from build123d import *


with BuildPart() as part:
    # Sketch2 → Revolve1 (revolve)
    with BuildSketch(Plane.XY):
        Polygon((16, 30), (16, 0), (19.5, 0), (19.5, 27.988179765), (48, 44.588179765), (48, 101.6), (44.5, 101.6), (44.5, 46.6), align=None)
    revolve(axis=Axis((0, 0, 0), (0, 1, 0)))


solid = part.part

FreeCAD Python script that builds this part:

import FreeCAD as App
import Part
import Sketcher


def add_polygon(sketch, points):
    """Adds a closed chain of lines whose ends are joined by coincident constraints."""
    first, n = sketch.GeometryCount, len(points)
    for a, b in zip(points, points[1:] + points[:1]):
        sketch.addGeometry(Part.LineSegment(App.Vector(*a, 0), App.Vector(*b, 0)), False)
    for i in range(n):
        sketch.addConstraint(Sketcher.Constraint("Coincident", first + i, 2, first + (i + 1) % n, 1))

doc = App.newDocument("Part")
params = doc.addObject("Spreadsheet::Sheet", "Params")
for row, (alias, value) in enumerate([
    ("sketch1_height", "30 mm"),
    ("sketch1_height2", "55 mm"),
    ("sketch1_width", "3.5 mm"),
    ("revolution_angle", "360 deg"),
], start=1):
    params.set(f"A{row}", alias)
    params.set(f"B{row}", "=" + value)
    params.setAlias(f"B{row}", alias)

body = doc.addObject("PartDesign::Body", "Body")

# Sketch on XY plane
sketch1 = doc.addObject("Sketcher::SketchObject", "Sketch")
body.addObject(sketch1)
sketch1.AttachmentSupport = (doc.XY_Plane, [""])
sketch1.MapMode = "FlatFace"
add_polygon(sketch1, [(16, 30), (16, 0), (19.5, 0), (19.5, 28), (48, 44.6), (48, 101.6), (44.5, 101.6), (44.5, 46.6)])  # lines 0-7
sketch1.addConstraint(Sketcher.Constraint("Vertical", 0))
sketch1.addConstraint(Sketcher.Constraint("Horizontal", 1))
sketch1.addConstraint(Sketcher.Constraint("Vertical", 2))
sketch1.addConstraint(Sketcher.Constraint("Vertical", 4))
sketch1.addConstraint(Sketcher.Constraint("Horizontal", 5))
sketch1.addConstraint(Sketcher.Constraint("Vertical", 6))
sketch1.addConstraint(Sketcher.Constraint("PointOnObject", 0, 2, -1))
sketch1.addConstraint(Sketcher.Constraint("Parallel", 3, 7))
sketch1.addConstraint(Sketcher.Constraint("Equal", 1, 5))
sketch1.addConstraint(Sketcher.Constraint("DistanceY", 0, 2, 0, 1, 30.0))
sketch1.addConstraint(Sketcher.Constraint("DistanceY", 6, 2, 6, 1, 55.0))
sketch1.addConstraint(Sketcher.Constraint("DistanceX", 1, 1, 1, 2, 3.5))
sketch1.addConstraint(Sketcher.Constraint("DistanceX", -1, 1, 0, 2, 16.0))
sketch1.addConstraint(Sketcher.Constraint("DistanceX", -1, 1, 3, 2, 48.0))
sketch1.addConstraint(Sketcher.Constraint("DistanceY", -1, 1, 4, 2, 101.6))
sketch1.addConstraint(Sketcher.Constraint("DistanceY", 2, 1, 2, 2, 27.98818))
sketch1.setExpression("Constraints[17]", "Params.sketch1_height")
sketch1.setExpression("Constraints[18]", "Params.sketch1_height2")
sketch1.setExpression("Constraints[19]", "Params.sketch1_width")
revolution = doc.addObject("PartDesign::Revolution", "Revolution")
body.addObject(revolution)
revolution.Profile = sketch1
revolution.ReferenceAxis = (sketch1, ["V_Axis"])
revolution.setExpression("Angle", "Params.revolution_angle")

doc.recompute()
